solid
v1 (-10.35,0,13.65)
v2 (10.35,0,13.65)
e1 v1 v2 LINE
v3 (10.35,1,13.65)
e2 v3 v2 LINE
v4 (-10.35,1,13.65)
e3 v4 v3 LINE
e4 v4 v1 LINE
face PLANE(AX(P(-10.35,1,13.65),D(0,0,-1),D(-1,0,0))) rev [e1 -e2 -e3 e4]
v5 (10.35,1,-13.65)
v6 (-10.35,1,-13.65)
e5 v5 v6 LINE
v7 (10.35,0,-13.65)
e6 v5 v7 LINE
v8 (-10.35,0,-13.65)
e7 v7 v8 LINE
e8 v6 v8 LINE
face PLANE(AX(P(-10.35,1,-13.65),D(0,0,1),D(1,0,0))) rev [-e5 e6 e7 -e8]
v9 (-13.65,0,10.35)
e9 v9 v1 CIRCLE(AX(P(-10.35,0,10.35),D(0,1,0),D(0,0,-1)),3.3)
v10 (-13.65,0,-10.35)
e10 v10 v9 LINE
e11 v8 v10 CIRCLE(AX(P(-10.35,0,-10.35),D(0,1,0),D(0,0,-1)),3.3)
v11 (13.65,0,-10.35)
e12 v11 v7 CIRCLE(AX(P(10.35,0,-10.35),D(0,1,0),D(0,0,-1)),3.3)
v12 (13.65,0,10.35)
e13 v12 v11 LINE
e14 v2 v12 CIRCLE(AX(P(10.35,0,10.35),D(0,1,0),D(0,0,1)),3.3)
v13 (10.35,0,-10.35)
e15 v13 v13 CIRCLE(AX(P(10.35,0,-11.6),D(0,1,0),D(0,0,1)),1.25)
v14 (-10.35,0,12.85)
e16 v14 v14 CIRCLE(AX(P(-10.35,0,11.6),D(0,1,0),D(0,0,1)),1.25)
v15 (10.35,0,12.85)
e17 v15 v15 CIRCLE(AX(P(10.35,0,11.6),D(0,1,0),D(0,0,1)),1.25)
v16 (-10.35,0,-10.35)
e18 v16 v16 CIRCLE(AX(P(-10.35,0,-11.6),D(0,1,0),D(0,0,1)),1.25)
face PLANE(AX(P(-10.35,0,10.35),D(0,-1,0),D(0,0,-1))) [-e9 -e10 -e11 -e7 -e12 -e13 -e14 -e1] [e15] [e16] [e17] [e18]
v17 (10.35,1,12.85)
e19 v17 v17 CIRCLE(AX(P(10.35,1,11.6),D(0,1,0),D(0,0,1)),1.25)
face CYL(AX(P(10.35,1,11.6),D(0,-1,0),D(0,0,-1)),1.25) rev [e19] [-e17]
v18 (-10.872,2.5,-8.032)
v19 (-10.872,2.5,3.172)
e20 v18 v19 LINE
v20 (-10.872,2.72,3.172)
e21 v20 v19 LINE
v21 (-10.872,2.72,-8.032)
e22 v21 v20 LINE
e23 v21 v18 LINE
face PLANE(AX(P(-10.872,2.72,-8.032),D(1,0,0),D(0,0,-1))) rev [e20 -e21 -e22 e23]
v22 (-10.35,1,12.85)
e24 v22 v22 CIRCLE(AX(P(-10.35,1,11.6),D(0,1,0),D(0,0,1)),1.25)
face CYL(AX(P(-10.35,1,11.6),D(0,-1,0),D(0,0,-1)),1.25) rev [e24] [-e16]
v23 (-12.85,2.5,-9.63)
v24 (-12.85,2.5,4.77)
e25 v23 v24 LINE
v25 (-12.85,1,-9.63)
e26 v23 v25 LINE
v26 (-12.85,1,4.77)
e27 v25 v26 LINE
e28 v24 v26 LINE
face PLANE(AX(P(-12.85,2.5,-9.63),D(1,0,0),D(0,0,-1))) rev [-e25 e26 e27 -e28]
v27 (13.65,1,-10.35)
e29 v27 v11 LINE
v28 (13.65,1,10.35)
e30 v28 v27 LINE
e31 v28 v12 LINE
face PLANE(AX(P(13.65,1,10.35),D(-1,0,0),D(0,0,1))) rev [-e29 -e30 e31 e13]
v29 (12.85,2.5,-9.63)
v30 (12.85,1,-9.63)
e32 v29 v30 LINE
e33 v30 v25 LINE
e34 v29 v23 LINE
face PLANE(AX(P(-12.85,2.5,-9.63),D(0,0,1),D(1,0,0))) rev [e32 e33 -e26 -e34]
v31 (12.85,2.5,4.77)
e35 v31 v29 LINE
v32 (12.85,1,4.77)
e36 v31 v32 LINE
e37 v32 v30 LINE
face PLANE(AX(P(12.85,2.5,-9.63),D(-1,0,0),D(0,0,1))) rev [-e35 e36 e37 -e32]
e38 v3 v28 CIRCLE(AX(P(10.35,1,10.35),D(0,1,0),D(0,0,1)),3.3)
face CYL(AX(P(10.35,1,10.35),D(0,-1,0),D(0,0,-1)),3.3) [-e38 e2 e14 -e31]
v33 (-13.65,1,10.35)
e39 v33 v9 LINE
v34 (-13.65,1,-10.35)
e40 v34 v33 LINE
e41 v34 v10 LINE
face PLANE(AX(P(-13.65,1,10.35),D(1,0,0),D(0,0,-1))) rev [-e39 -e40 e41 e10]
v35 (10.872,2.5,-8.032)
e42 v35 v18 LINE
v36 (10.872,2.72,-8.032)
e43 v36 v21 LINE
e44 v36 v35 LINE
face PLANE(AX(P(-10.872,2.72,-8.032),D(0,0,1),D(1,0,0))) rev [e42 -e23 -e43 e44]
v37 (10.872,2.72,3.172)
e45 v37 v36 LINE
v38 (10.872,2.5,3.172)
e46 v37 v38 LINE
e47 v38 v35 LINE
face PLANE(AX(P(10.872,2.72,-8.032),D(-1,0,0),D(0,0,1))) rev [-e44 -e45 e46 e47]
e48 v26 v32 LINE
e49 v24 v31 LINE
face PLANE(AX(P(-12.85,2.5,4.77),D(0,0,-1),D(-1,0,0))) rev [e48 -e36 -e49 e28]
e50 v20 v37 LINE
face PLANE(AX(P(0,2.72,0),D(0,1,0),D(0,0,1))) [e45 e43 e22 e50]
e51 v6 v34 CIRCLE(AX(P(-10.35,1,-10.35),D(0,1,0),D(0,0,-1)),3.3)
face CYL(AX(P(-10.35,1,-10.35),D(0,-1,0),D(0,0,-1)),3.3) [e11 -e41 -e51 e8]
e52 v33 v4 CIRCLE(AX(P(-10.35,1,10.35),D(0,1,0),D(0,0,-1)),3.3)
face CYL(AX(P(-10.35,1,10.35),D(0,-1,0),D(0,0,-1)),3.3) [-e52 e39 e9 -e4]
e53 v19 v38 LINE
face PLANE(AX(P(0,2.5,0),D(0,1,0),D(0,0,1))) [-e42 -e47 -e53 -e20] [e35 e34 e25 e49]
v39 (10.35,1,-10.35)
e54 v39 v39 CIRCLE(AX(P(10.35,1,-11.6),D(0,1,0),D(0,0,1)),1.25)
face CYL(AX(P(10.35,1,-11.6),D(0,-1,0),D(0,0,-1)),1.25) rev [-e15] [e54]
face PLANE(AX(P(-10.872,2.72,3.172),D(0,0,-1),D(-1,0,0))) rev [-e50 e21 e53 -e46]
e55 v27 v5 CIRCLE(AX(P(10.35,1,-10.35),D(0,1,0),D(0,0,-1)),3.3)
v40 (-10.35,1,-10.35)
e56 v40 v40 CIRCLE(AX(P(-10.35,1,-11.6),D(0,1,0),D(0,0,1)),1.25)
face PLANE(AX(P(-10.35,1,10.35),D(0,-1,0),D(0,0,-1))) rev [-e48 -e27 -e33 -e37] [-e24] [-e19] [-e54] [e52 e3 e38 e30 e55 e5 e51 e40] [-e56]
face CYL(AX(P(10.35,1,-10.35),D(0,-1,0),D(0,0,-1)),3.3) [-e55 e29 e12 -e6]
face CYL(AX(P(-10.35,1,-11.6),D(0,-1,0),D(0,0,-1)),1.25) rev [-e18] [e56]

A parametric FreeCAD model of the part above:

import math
import FreeCAD as App
import Part
import Sketcher


def add_polygon(sketch, points):
    """Adds a closed chain of lines whose ends are joined by coincident constraints."""
    first, n = sketch.GeometryCount, len(points)
    for a, b in zip(points, points[1:] + points[:1]):
        sketch.addGeometry(Part.LineSegment(App.Vector(*a, 0), App.Vector(*b, 0)), False)
    for i in range(n):
        sketch.addConstraint(Sketcher.Constraint("Coincident", first + i, 2, first + (i + 1) % n, 1))

doc = App.newDocument("Part")
params = doc.addObject("Spreadsheet::Sheet", "Params")
for row, (alias, value) in enumerate([
    ("sketch1_diameter", "2.5 mm"),
    ("sketch1_radius", "3.3 mm"),
    ("sketch1_width", "20.7 mm"),
    ("pad1_length", "1 mm"),
    ("sketch2_width", "25.7 mm"),
    ("sketch2_height", "14.4 mm"),
    ("pad2_length", "1.5 mm"),
    ("pad3_length", "0.22 mm"),
], start=1):
    params.set(f"A{row}", alias)
    params.set(f"B{row}", "=" + value)
    params.setAlias(f"B{row}", alias)

body = doc.addObject("PartDesign::Body", "Body")

# Sketch on XZ plane
sketch1 = body.newObject("Sketcher::SketchObject", "Sketch")
sketch1.AttachmentSupport = (doc.getObject("XZ_Plane"), [""])
sketch1.MapMode = "FlatFace"
sketch1.addGeometry([
    Part.LineSegment(App.Vector(-10.3, 13.7, 0), App.Vector(10.3, 13.7, 0)),  # 0
    Part.ArcOfCircle(Part.Circle(App.Vector(10.3, 10.3, 0), App.Vector(0, 0, 1), 3.3), math.radians(0), math.radians(90)),  # 1
    Part.LineSegment(App.Vector(13.7, 10.3, 0), App.Vector(13.7, -10.3, 0)),  # 2
    Part.ArcOfCircle(Part.Circle(App.Vector(10.3, -10.3, 0), App.Vector(0, 0, 1), 3.3), math.radians(-90), math.radians(0)),  # 3
    Part.LineSegment(App.Vector(10.3, -13.7, 0), App.Vector(-10.3, -13.7, 0)),  # 4
    Part.ArcOfCircle(Part.Circle(App.Vector(-10.3, -10.3, 0), App.Vector(0, 0, 1), 3.3), math.radians(180), math.radians(270)),  # 5
    Part.LineSegment(App.Vector(-13.7, -10.3, 0), App.Vector(-13.7, 10.3, 0)),  # 6
    Part.ArcOfCircle(Part.Circle(App.Vector(-10.3, 10.3, 0), App.Vector(0, 0, 1), 3.3), math.radians(90), math.radians(180)),  # 7
    Part.Circle(App.Vector(-10.3, 11.6, 0), App.Vector(0, 0, 1), 1.2),  # 8
    Part.Circle(App.Vector(10.3, 11.6, 0), App.Vector(0, 0, 1), 1.2),  # 9
    Part.Circle(App.Vector(-10.3, -11.6, 0), App.Vector(0, 0, 1), 1.2),  # 10
    Part.Circle(App.Vector(10.3, -11.6, 0), App.Vector(0, 0, 1), 1.2),  # 11
], False)
sketch1.addConstraint([
    Sketcher.Constraint("Tangent", 0, 2, 1, 2),
    Sketcher.Constraint("Tangent", 1, 1, 2, 1),
    Sketcher.Constraint("Tangent", 2, 2, 3, 2),
    Sketcher.Constraint("Tangent", 3, 1, 4, 1),
    Sketcher.Constraint("Tangent", 4, 2, 5, 2),
    Sketcher.Constraint("Tangent", 5, 1, 6, 1),
    Sketcher.Constraint("Tangent", 6, 2, 7, 2),
    Sketcher.Constraint("Tangent", 7, 1, 0, 1),
    Sketcher.Constraint("Horizontal", 0),
    Sketcher.Constraint("Vertical", 2),
    Sketcher.Constraint("Horizontal", 4),
    Sketcher.Constraint("Vertical", 6),
    Sketcher.Constraint("Equal", 1, 3),
    Sketcher.Constraint("Equal", 3, 5),
    Sketcher.Constraint("Equal", 5, 7),
    Sketcher.Constraint("Equal", 8, 9),
    Sketcher.Constraint("Equal", 9, 10),
    Sketcher.Constraint("Equal", 10, 11),
    Sketcher.Constraint("Symmetric", 1, 3, 5, 3, -1, 1),
    Sketcher.Constraint("Symmetric", 9, 3, 10, 3, -1, 1),
    Sketcher.Constraint("Symmetric", 8, 3, 11, 3, -1, 1),
    Sketcher.Constraint("Symmetric", 8, 3, 9, 3, -2),
    Sketcher.Constraint("Vertical", 7, 3, 8, 3),
    Sketcher.Constraint("Equal", 4, 2),
    Sketcher.Constraint("Diameter", 8, 2.5),
    Sketcher.Constraint("Radius", 1, 3.3),
    Sketcher.Constraint("DistanceX", 0, 1, 0, 2, 20.7),
    Sketcher.Constraint("DistanceY", -1, 1, 8, 3, 11.6),
])
sketch1.setExpression("Constraints[24]", "Params.sketch1_diameter")
sketch1.setExpression("Constraints[25]", "Params.sketch1_radius")
sketch1.setExpression("Constraints[26]", "Params.sketch1_width")
pad1 = body.newObject("PartDesign::Pad", "Pad")
pad1.Profile = sketch1
pad1.setExpression("Length", "Params.pad1_length")
pad1.Reversed = True

# Sketch on XZ plane
sketch2 = body.newObject("Sketcher::SketchObject", "Sketch001")
sketch2.AttachmentSupport = (doc.getObject("XZ_Plane"), [""])
sketch2.MapMode = "FlatFace"
sketch2.AttachmentOffset = App.Placement(App.Vector(0, 0, -1), App.Rotation())
add_polygon(sketch2, [(-13, -10), (-13, 5), (13, 5), (13, -10)])  # lines 0-3
sketch2.addConstraint([
    Sketcher.Constraint("Vertical", 0),
    Sketcher.Constraint("Horizontal", 1),
    Sketcher.Constraint("Vertical", 2),
    Sketcher.Constraint("Horizontal", 3),
    Sketcher.Constraint("DistanceX", 1, 1, 1, 2, 25.7),
    Sketcher.Constraint("DistanceY", 0, 1, 0, 2, 14.4),
    Sketcher.Constraint("DistanceX", 0, 2, -1, 1, 12.85),
    Sketcher.Constraint("DistanceY", -1, 1, 0, 2, 4.77),
])
sketch2.setExpression("Constraints[8]", "Params.sketch2_width")
sketch2.setExpression("Constraints[9]", "Params.sketch2_height")
pad2 = body.newObject("PartDesign::Pad", "Pad001")
pad2.Profile = sketch2
pad2.setExpression("Length", "Params.pad2_length")
pad2.Reversed = True

# Sketch on XZ plane
sketch3 = body.newObject("Sketcher::SketchObject", "Sketch002")
sketch3.AttachmentSupport = (doc.getObject("XZ_Plane"), [""])
sketch3.MapMode = "FlatFace"
sketch3.AttachmentOffset = App.Placement(App.Vector(0, 0, -2.5), App.Rotation())
add_polygon(sketch3, [(-11, -8), (-11, 3), (11, 3), (11, -8)])  # lines 0-3
sketch3.addConstraint([
    Sketcher.Constraint("Vertical", 0),
    Sketcher.Constraint("Horizontal", 1),
    Sketcher.Constraint("Vertical", 2),
    Sketcher.Constraint("Horizontal", 3),
    Sketcher.Constraint("DistanceX", 1, 1, 1, 2, 21.744),
    Sketcher.Constraint("DistanceY", 0, 1, 0, 2, 11.204),
    Sketcher.Constraint("DistanceX", 0, 2, -1, 1, 10.872),
    Sketcher.Constraint("DistanceY", -1, 1, 0, 2, 3.172),
])
pad3 = body.newObject("PartDesign::Pad", "Pad002")
pad3.Profile = sketch3
pad3.setExpression("Length", "Params.pad3_length")
pad3.Reversed = True

doc.recompute()
